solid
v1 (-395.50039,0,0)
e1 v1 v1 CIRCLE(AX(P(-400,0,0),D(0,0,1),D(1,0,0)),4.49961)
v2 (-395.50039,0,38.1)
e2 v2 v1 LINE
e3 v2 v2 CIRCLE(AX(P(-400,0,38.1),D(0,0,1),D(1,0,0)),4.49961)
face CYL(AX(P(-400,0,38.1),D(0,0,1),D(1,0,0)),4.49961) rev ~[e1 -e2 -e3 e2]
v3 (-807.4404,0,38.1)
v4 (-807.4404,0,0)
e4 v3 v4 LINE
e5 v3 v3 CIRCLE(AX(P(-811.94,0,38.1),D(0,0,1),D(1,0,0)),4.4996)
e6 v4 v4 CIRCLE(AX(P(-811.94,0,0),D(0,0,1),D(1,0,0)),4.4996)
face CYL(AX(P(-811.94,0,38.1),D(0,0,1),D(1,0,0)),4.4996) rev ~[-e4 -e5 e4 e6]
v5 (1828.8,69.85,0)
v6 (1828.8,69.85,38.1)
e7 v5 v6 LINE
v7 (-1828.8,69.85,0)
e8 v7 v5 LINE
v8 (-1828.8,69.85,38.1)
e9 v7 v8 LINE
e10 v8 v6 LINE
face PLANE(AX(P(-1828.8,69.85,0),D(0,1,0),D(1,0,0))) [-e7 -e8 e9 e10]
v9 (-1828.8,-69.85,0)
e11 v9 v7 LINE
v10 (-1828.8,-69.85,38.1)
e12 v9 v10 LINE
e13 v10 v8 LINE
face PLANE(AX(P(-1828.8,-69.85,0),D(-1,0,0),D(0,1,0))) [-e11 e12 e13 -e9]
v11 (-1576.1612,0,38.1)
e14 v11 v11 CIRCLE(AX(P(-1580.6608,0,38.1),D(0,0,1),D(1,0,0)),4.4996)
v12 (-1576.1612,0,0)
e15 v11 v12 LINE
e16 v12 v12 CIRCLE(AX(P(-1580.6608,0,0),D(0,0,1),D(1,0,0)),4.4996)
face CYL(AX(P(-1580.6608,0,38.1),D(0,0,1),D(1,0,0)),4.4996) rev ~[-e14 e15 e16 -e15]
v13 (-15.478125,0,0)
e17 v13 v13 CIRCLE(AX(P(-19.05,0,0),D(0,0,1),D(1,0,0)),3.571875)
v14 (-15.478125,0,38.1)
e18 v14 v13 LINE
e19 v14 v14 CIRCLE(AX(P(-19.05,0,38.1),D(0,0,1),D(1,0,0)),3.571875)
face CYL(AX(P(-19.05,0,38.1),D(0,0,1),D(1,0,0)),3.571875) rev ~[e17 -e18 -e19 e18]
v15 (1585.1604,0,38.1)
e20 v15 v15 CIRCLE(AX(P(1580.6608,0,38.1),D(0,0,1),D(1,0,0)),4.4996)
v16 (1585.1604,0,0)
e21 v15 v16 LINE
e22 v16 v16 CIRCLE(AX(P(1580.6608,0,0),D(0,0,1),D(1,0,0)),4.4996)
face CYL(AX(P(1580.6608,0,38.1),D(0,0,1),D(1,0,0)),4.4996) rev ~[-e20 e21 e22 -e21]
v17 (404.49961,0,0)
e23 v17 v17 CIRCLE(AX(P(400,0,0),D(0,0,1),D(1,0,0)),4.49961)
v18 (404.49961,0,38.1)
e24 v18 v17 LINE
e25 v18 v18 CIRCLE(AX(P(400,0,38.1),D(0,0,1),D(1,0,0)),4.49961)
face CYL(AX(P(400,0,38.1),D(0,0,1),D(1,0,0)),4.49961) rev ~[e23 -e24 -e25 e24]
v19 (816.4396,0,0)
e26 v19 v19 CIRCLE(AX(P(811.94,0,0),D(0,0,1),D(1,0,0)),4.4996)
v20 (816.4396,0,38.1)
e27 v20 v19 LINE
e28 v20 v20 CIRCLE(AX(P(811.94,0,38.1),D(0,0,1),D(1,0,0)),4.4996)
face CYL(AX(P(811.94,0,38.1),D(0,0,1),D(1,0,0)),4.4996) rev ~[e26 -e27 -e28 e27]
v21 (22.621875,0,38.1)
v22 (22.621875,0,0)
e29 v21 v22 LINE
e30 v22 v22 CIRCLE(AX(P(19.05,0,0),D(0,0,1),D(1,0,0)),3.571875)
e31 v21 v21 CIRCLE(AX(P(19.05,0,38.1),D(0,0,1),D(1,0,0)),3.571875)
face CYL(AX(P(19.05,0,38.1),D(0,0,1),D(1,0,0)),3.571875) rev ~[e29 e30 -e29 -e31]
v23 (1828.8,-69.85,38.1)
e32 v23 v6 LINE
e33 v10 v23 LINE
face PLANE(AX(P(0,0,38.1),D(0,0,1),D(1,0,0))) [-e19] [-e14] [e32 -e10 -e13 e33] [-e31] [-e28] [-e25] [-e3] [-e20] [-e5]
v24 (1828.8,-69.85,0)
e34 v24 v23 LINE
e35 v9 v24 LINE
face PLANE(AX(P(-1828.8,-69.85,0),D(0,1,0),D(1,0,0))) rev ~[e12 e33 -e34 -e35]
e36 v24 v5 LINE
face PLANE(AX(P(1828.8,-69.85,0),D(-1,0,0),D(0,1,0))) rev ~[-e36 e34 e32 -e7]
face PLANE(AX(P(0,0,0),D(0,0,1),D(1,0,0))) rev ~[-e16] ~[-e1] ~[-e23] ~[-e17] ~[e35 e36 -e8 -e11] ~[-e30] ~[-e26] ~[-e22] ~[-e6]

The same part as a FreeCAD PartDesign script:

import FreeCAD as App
import Part
import Sketcher
Q = App.Units.Quantity

doc = App.newDocument("Part")
body = doc.addObject("PartDesign::Body", "Body")

# Sketch on XY plane
sketch1 = doc.addObject("Sketcher::SketchObject", "Sketch")
body.addObject(sketch1)
sketch1.AttachmentSupport = (doc.XY_Plane, [""])
sketch1.MapMode = "FlatFace"
sketch1.addGeometry(Part.LineSegment(App.Vector(-1829, 70, 0), App.Vector(-1829, -70, 0)), False)
sketch1.addGeometry(Part.LineSegment(App.Vector(-1829, -70, 0), App.Vector(1829, -70, 0)), False)
sketch1.addGeometry(Part.LineSegment(App.Vector(1829, -70, 0), App.Vector(1829, 70, 0)), False)
sketch1.addGeometry(Part.LineSegment(App.Vector(1829, 70, 0), App.Vector(-1829, 70, 0)), False)
sketch1.addConstraint(Sketcher.Constraint("Coincident", 0, 2, 1, 1))
sketch1.addConstraint(Sketcher.Constraint("Coincident", 1, 2, 2, 1))
sketch1.addConstraint(Sketcher.Constraint("Coincident", 2, 2, 3, 1))
sketch1.addConstraint(Sketcher.Constraint("Coincident", 3, 2, 0, 1))
sketch1.addConstraint(Sketcher.Constraint("Vertical", 0))
sketch1.addConstraint(Sketcher.Constraint("Horizontal", 1))
sketch1.addConstraint(Sketcher.Constraint("Vertical", 2))
sketch1.addConstraint(Sketcher.Constraint("Horizontal", 3))
sketch1.addConstraint(Sketcher.Constraint("Symmetric", 0, 2, 2, 2, -1, 1))
sketch1.addConstraint(Sketcher.Constraint("DistanceX", 1, 1, 1, 2, Q("144 in")))
sketch1.addConstraint(Sketcher.Constraint("DistanceY", 0, 2, 0, 1, Q("5.5 in")))
pad1 = doc.addObject("PartDesign::Pad", "Pad")
body.addObject(pad1)
pad1.Profile = sketch1
pad1.Length = Q("1.5 in")

# Sketch on XY plane
sketch2 = doc.addObject("Sketcher::SketchObject", "Sketch001")
body.addObject(sketch2)
sketch2.AttachmentSupport = (doc.XY_Plane, [""])
sketch2.MapMode = "FlatFace"
sketch2.AttachmentOffset = App.Placement(App.Vector(0, 0, 1.5 * 25.4), App.Rotation())
sketch2.addGeometry(Part.Circle(App.Vector(-19.1, 0, 0), App.Vector(0, 0, 1), 3.6), False)
sketch2.addGeometry(Part.Circle(App.Vector(19.1, 0, 0), App.Vector(0, 0, 1), 3.6), False)
sketch2.addConstraint(Sketcher.Constraint("Equal", 0, 1))
sketch2.addConstraint(Sketcher.Constraint("Symmetric", 0, 3, 1, 3, -1, 1))
sketch2.addConstraint(Sketcher.Constraint("PointOnObject", 0, 3, -1))
sketch2.addConstraint(Sketcher.Constraint("Diameter", 0, Q("0.28125 in")))
sketch2.addConstraint(Sketcher.Constraint("DistanceX", 0, 3, 1, 3, Q("1.5 in")))
pocket1 = doc.addObject("PartDesign::Pocket", "Pocket")
body.addObject(pocket1)
pocket1.Profile = sketch2
pocket1.Type = "ThroughAll"

# Sketch on XY plane
sketch3 = doc.addObject("Sketcher::SketchObject", "Sketch002")
body.addObject(sketch3)
sketch3.AttachmentSupport = (doc.XY_Plane, [""])
sketch3.MapMode = "FlatFace"
sketch3.AttachmentOffset = App.Placement(App.Vector(0, 0, 1.5 * 25.4), App.Rotation())
sketch3.addGeometry(Part.Circle(App.Vector(400, 0, 0), App.Vector(0, 0, 1), 4.5), False)
sketch3.addGeometry(Part.Circle(App.Vector(-400, 0, 0), App.Vector(0, 0, 1), 4.5), False)
sketch3.addConstraint(Sketcher.Constraint("Equal", 0, 1))
sketch3.addConstraint(Sketcher.Constraint("Symmetric", 0, 3, 1, 3, -1, 1))
sketch3.addConstraint(Sketcher.Constraint("PointOnObject", 0, 3, -1))
sketch3.addConstraint(Sketcher.Constraint("Diameter", 0, Q("0.3543 in")))
sketch3.addConstraint(Sketcher.Constraint("DistanceX", -1, 1, 0, 3, 400.0))
pocket2 = doc.addObject("PartDesign::Pocket", "Pocket001")
body.addObject(pocket2)
pocket2.Profile = sketch3
pocket2.Type = "ThroughAll"

# Sketch on XY plane
sketch4 = doc.addObject("Sketcher::SketchObject", "Sketch003")
body.addObject(sketch4)
sketch4.AttachmentSupport = (doc.XY_Plane, [""])
sketch4.MapMode = "FlatFace"
sketch4.AttachmentOffset = App.Placement(App.Vector(0, 0, 1.5 * 25.4), App.Rotation())
sketch4.addGeometry(Part.Circle(App.Vector(811.9, 0, 0), App.Vector(0, 0, 1), 4.5), False)
sketch4.addGeometry(Part.Circle(App.Vector(1580.7, 0, 0), App.Vector(0, 0, 1), 4.5), False)
sketch4.addGeometry(Part.Circle(App.Vector(-1580.7, 0, 0), App.Vector(0, 0, 1), 4.5), False)
sketch4.addGeometry(Part.Circle(App.Vector(-811.9, 0, 0), App.Vector(0, 0, 1), 4.5), False)
sketch4.addConstraint(Sketcher.Constraint("Equal", 0, 1))
sketch4.addConstraint(Sketcher.Constraint("Equal", 1, 2))
sketch4.addConstraint(Sketcher.Constraint("Equal", 2, 3))
sketch4.addConstraint(Sketcher.Constraint("Symmetric", 1, 3, 2, 3, -1, 1))
sketch4.addConstraint(Sketcher.Constraint("Symmetric", 0, 3, 3, 3, -1, 1))
sketch4.addConstraint(Sketcher.Constraint("PointOnObject", 0, 3, -1))
sketch4.addConstraint(Sketcher.Constraint("PointOnObject", 1, 3, -1))
sketch4.addConstraint(Sketcher.Constraint("Diameter", 0, 8.9992))
sketch4.addConstraint(Sketcher.Constraint("DistanceX", -1, 1, 0, 3, 811.94))
sketch4.addConstraint(Sketcher.Constraint("DistanceX", -1, 1, 1, 3, 1580.6608))
pocket3 = doc.addObject("PartDesign::Pocket", "Pocket002")
body.addObject(pocket3)
pocket3.Profile = sketch4
pocket3.Type = "ThroughAll"

doc.recompute()
